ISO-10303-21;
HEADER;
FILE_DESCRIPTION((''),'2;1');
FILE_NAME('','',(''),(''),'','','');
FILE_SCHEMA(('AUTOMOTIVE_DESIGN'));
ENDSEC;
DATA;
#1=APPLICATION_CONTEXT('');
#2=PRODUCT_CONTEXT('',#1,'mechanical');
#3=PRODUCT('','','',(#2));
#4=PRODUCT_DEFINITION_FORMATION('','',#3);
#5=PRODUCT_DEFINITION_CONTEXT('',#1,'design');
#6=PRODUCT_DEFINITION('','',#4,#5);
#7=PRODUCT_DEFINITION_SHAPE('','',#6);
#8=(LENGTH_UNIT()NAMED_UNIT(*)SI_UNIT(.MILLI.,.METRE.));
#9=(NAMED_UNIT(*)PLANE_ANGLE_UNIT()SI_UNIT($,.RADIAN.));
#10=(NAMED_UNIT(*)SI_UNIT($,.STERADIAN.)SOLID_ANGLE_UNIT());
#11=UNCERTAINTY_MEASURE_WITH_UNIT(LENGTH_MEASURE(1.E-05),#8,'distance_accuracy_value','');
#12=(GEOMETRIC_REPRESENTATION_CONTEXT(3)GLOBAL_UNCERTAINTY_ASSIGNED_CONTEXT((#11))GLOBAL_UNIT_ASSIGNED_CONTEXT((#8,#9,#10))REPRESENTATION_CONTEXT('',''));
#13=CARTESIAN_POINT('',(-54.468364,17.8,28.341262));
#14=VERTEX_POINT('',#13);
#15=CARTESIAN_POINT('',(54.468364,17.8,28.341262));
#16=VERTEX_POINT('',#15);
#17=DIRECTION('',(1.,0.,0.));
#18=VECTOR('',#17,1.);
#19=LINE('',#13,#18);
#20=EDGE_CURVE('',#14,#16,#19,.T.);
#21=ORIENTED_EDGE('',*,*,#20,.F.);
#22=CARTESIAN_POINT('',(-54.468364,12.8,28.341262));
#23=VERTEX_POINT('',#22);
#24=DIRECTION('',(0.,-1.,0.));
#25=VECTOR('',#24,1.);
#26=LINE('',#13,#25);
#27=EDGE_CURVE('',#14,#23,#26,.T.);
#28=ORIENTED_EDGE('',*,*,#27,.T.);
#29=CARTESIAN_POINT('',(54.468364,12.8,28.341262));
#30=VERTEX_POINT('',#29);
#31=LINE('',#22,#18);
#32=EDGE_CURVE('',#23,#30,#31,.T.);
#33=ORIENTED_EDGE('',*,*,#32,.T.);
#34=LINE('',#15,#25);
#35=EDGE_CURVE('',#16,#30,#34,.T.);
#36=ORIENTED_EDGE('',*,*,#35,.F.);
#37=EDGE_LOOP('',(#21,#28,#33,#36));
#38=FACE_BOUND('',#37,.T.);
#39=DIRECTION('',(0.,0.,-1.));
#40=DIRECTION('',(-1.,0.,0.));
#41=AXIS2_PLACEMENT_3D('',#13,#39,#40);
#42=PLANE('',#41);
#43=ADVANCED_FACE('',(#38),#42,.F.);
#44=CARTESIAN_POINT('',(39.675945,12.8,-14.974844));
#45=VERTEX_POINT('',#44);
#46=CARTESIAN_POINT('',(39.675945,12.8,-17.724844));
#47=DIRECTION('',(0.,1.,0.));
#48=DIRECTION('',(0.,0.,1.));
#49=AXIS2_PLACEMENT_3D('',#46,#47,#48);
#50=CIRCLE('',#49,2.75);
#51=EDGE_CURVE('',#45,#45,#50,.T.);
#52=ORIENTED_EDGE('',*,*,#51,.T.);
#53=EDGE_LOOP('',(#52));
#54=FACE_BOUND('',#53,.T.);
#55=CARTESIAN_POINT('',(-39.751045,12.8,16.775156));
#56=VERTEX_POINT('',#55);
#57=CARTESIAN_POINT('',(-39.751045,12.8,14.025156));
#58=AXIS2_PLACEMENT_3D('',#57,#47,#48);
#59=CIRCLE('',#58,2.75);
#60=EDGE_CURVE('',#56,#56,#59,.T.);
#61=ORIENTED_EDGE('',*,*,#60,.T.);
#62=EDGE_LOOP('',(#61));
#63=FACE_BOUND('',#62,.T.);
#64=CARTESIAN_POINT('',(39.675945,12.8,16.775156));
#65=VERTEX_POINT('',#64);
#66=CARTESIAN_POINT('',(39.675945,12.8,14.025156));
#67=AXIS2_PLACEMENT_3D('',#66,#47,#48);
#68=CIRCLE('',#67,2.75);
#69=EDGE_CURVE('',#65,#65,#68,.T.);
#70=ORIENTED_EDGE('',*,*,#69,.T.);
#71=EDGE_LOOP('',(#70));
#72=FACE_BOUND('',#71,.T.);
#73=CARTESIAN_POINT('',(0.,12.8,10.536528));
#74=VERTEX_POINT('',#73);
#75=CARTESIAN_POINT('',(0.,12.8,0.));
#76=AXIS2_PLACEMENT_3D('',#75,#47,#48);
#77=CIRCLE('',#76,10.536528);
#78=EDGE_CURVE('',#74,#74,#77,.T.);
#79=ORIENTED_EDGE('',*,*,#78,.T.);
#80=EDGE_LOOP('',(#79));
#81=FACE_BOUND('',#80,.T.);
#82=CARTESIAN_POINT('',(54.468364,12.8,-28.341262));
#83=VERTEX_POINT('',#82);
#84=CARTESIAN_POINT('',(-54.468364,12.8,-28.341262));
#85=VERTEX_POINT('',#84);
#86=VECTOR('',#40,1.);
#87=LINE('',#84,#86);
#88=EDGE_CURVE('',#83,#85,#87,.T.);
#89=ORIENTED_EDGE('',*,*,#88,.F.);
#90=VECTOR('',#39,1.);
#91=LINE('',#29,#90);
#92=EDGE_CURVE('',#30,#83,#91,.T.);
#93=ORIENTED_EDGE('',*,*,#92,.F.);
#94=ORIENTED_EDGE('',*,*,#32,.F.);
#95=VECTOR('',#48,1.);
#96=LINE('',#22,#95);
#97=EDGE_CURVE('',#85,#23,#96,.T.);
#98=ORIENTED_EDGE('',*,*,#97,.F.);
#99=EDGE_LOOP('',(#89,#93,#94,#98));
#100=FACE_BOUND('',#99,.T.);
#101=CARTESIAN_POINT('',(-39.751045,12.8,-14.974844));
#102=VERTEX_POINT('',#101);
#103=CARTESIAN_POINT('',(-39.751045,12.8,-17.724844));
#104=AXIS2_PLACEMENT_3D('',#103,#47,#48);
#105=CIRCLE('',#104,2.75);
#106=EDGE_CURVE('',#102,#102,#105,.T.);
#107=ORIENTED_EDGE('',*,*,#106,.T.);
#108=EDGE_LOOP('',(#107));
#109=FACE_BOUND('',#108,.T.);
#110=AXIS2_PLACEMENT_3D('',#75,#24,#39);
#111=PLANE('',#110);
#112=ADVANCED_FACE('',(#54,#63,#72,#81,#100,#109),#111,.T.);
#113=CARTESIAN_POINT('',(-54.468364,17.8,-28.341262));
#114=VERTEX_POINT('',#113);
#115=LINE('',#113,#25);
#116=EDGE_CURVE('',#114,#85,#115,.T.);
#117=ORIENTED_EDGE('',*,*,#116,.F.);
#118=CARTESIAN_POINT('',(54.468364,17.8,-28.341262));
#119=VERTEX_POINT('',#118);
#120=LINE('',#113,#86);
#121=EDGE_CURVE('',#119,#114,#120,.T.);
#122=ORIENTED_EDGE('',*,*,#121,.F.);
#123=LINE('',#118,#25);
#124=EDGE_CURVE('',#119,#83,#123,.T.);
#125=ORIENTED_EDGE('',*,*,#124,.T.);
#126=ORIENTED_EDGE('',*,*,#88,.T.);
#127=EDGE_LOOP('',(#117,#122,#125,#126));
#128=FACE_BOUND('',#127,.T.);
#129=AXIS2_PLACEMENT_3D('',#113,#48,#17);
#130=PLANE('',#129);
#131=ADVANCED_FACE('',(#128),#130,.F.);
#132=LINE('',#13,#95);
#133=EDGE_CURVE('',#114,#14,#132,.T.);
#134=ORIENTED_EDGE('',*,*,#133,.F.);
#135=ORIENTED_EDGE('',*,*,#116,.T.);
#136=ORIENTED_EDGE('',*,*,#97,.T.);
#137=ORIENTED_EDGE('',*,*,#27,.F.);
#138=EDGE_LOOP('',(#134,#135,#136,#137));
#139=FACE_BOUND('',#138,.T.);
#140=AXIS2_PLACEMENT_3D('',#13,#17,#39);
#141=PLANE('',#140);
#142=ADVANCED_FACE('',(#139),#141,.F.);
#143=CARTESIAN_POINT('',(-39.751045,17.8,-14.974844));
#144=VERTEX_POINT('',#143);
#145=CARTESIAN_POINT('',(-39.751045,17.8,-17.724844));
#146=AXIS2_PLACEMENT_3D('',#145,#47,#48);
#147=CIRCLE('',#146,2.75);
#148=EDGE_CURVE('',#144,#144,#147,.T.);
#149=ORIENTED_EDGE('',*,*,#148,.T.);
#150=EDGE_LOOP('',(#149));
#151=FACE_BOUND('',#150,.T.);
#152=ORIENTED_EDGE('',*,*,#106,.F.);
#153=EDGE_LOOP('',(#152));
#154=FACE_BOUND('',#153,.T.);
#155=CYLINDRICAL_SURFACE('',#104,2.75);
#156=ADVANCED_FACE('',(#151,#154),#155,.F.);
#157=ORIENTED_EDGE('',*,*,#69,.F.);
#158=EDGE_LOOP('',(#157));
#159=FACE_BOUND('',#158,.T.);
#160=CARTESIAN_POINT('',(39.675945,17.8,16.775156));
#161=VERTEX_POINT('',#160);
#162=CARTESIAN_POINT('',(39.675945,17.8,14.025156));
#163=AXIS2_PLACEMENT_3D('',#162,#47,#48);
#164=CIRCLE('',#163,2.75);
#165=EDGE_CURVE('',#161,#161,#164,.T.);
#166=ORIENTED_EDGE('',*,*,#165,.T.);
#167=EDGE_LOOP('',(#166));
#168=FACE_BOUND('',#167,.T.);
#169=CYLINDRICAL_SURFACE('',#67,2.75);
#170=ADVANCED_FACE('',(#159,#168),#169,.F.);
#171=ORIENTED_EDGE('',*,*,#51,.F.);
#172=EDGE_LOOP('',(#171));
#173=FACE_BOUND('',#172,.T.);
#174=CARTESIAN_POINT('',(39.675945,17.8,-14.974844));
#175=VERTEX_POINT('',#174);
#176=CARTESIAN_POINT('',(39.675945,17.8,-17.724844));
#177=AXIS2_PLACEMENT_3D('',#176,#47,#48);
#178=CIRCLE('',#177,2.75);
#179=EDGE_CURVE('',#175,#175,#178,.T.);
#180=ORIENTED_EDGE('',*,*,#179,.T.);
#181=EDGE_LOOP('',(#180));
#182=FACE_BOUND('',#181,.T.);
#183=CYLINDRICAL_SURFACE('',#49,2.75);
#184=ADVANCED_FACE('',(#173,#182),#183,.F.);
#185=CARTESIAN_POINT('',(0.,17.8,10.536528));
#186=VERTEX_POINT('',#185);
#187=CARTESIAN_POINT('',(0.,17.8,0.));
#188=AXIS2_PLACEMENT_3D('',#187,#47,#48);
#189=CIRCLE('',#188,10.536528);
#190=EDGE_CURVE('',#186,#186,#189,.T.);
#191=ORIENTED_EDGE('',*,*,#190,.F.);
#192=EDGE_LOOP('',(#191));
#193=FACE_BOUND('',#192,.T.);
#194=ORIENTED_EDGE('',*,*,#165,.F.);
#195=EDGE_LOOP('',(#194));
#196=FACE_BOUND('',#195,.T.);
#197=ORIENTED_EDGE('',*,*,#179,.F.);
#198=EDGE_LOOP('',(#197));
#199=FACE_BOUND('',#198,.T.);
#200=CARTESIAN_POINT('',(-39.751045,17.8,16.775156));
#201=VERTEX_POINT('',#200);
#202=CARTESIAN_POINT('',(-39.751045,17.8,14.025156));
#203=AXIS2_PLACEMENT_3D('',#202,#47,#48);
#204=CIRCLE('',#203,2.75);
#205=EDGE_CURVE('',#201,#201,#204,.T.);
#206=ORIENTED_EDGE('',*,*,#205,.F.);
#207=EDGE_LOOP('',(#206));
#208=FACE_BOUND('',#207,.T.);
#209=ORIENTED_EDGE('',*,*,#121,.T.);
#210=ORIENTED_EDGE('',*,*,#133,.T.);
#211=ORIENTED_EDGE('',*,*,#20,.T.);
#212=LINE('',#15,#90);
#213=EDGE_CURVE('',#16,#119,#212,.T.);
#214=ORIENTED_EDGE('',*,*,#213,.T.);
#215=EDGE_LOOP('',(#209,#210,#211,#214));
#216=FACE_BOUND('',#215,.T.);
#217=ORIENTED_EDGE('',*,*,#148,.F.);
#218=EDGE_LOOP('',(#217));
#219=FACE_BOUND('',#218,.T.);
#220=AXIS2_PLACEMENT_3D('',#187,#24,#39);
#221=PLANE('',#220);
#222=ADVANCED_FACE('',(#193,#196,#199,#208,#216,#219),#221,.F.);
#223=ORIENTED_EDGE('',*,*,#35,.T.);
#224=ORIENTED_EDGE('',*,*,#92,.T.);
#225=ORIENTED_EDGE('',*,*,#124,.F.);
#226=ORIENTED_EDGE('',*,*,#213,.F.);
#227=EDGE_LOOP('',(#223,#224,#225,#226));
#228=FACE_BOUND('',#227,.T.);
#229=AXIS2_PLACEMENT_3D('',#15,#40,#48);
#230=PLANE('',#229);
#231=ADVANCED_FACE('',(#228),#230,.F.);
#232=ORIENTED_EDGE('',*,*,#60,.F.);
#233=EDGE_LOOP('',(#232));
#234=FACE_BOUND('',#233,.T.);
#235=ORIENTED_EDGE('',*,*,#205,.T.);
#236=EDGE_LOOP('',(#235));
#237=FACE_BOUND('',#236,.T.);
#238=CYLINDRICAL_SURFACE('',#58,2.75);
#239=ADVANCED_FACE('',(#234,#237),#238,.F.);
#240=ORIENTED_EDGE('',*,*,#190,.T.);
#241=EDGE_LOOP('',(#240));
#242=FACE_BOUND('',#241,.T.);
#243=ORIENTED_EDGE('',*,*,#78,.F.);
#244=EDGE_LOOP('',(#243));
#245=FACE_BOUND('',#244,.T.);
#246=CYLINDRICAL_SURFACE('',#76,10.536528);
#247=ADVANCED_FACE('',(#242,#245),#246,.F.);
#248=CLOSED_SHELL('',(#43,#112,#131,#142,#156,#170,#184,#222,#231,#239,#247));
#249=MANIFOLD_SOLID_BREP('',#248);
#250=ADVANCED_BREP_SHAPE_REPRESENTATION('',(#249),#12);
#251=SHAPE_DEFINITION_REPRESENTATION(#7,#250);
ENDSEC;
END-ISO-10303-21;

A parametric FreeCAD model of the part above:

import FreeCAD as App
import Part
import Sketcher

V = App.Vector

doc = App.newDocument("Part")
body = doc.addObject("PartDesign::Body", "Body")

# Sketch on XZ plane
sketch1 = doc.addObject("Sketcher::SketchObject", "Sketch")
body.addObject(sketch1)
sketch1.AttachmentSupport = (doc.XZ_Plane, [""])
sketch1.MapMode = "FlatFace"
sketch1.AttachmentOffset = App.Placement(V(0, 0, -12.8), App.Rotation())
sketch1.addGeometry([
    Part.LineSegment(V(-54, -28, 0), V(-54, 28, 0)),
    Part.LineSegment(V(-54, 28, 0), V(54, 28, 0)),
    Part.LineSegment(V(54, 28, 0), V(54, -28, 0)),
    Part.LineSegment(V(54, -28, 0), V(-54, -28, 0)),
], False)
sketch1.addConstraint([
    Sketcher.Constraint("Coincident", 0, 2, 1, 1),
    Sketcher.Constraint("Coincident", 1, 2, 2, 1),
    Sketcher.Constraint("Coincident", 2, 2, 3, 1),
    Sketcher.Constraint("Coincident", 3, 2, 0, 1),
    Sketcher.Constraint("Vertical", 0),
    Sketcher.Constraint("Horizontal", 1),
    Sketcher.Constraint("Vertical", 2),
    Sketcher.Constraint("Horizontal", 3),
    Sketcher.Constraint("Symmetric", 0, 2, 2, 2, -1, 1),
    Sketcher.Constraint("DistanceX", 1, 1, 1, 2, 108.936727),
    Sketcher.Constraint("DistanceY", 0, 1, 0, 2, 56.682525),
])
pad1 = doc.addObject("PartDesign::Pad", "Pad")
body.addObject(pad1)
pad1.Profile = sketch1
pad1.Length = 5
pad1.Reversed = True

# Sketch on XZ plane
sketch2 = doc.addObject("Sketcher::SketchObject", "Sketch001")
body.addObject(sketch2)
sketch2.AttachmentSupport = (doc.XZ_Plane, [""])
sketch2.MapMode = "FlatFace"
sketch2.AttachmentOffset = App.Placement(V(0, 0, -17.8), App.Rotation())
sketch2.addGeometry([
    Part.Circle(V(-39.8, -17.7, 0), V(0, 0, 1), 2.8),
    Part.Circle(V(-39.8, 14, 0), V(0, 0, 1), 2.8),
    Part.Circle(V(39.7, 14, 0), V(0, 0, 1), 2.8),
    Part.Circle(V(39.7, -17.7, 0), V(0, 0, 1), 2.8),
], False)
sketch2.addConstraint([
    Sketcher.Constraint("Equal", 0, 1),
    Sketcher.Constraint("Equal", 1, 2),
    Sketcher.Constraint("Equal", 2, 3),
    Sketcher.Constraint("Horizontal", 1, 3, 2, 3),
    Sketcher.Constraint("Horizontal", 0, 3, 3, 3),
    Sketcher.Constraint("Vertical", 0, 3, 1, 3),
    Sketcher.Constraint("Vertical", 2, 3, 3, 3),
    Sketcher.Constraint("Diameter", 0, 5.5),
    Sketcher.Constraint("DistanceY", 0, 3, 1, 3, 31.75),
    Sketcher.Constraint("DistanceX", 1, 3, 2, 3, 79.42699),
    Sketcher.Constraint("DistanceX", 0, 3, -1, 1, 39.751045),
    Sketcher.Constraint("DistanceY", 0, 3, -1, 1, 17.724844),
])
pocket1 = doc.addObject("PartDesign::Pocket", "Pocket")
body.addObject(pocket1)
pocket1.Profile = sketch2
pocket1.Length = 5
pocket1.Reversed = True

# Sketch on XZ plane
sketch3 = doc.addObject("Sketcher::SketchObject", "Sketch002")
body.addObject(sketch3)
sketch3.AttachmentSupport = (doc.XZ_Plane, [""])
sketch3.MapMode = "FlatFace"
sketch3.AttachmentOffset = App.Placement(V(0, 0, -17.8), App.Rotation())
sketch3.addGeometry(Part.Circle(V(0, 0, 0), V(0, 0, 1), 11), False)
sketch3.addConstraint([
    Sketcher.Constraint("Coincident", 0, 3, -1, 1),
    Sketcher.Constraint("Diameter", 0, 21.073056),
])
pocket2 = doc.addObject("PartDesign::Pocket", "Pocket001")
body.addObject(pocket2)
pocket2.Profile = sketch3
pocket2.Length = 5
pocket2.Reversed = True

doc.recompute()
